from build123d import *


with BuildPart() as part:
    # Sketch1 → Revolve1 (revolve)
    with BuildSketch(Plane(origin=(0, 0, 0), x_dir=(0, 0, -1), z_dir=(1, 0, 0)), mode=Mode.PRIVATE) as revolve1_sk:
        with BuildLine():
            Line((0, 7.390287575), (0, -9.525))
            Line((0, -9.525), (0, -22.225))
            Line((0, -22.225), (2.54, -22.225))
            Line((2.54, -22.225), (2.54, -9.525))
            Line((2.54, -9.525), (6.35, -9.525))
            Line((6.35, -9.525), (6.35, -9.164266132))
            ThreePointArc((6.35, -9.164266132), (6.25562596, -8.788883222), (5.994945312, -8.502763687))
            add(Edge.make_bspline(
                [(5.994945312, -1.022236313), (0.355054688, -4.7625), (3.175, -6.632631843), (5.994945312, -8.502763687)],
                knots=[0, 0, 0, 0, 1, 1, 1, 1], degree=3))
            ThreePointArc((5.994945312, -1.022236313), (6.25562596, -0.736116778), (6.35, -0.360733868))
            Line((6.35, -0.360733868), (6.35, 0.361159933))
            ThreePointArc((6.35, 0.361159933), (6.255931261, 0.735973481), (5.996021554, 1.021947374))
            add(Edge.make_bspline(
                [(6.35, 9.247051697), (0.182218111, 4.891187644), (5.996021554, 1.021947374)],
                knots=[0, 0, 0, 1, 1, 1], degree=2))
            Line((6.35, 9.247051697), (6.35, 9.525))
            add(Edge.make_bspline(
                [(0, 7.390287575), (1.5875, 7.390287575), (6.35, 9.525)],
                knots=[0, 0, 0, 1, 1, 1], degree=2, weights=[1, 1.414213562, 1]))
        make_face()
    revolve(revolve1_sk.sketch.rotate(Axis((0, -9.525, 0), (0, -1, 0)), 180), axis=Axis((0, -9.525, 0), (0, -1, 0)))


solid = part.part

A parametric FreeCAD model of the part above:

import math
import FreeCAD as App
import Part
import Sketcher
from FreeCAD import Vector
Q = App.Units.Quantity

doc = App.newDocument("Part")
params = doc.addObject("Spreadsheet::Sheet", "Params")
for row, (alias, value) in enumerate([
    ("sketch1_width", "0.5 in"),
    ("sketch1_height", "0.1 in"),
    ("sketch1_radius", "0.03125 in"),
    ("revolution_angle", "360 deg"),
], start=1):
    params.set(f"A{row}", alias)
    params.set(f"B{row}", "=" + value)
    params.setAlias(f"B{row}", alias)

body = doc.addObject("PartDesign::Body", "Body")

# Sketch on YZ plane
sketch1 = body.newObject("Sketcher::SketchObject", "Sketch")
sketch1.AttachmentSupport = (doc.getObject("YZ_Plane"), [""])
sketch1.MapMode = "FlatFace"
sketch1.addGeometry(Part.LineSegment(Vector(7.390288, 0, 0), Vector(-22.225, 0, 0)), False)
sketch1.addGeometry(Part.LineSegment(Vector(-22.225, 0, 0), Vector(-22.225, -2.54, 0)), False)
sketch1.addGeometry(Part.LineSegment(Vector(-22.225, -2.54, 0), Vector(-9.525, -2.54, 0)), False)
sketch1.addGeometry(Part.LineSegment(Vector(-9.525, -2.54, 0), Vector(-9.525, -6.35, 0)), False)
sketch1.addGeometry(Part.LineSegment(Vector(-9.525, -6.35, 0), Vector(-9.164266, -6.35, 0)), False)
sketch1.addGeometry(Part.ArcOfCircle(Part.Circle(Vector(-9.164266, -5.55625, 0), Vector(0, 0, 1), 0.79375), math.radians(-90), math.radians(-33.551549)), False)
sketch1.addGeometry(Part.BSplineCurve([Vector(-1.022236, -5.994945, 0), Vector(-4.7625, -0.355055, 0), Vector(-6.632632, -3.175, 0), Vector(-8.502764, -5.994945, 0)], [4, 4], [0, 1], False, 3, [1, 1, 1, 1], False), False)
sketch1.addGeometry(Part.ArcOfCircle(Part.Circle(Vector(-0.360734, -5.55625, 0), Vector(0, 0, 1), 0.79375), math.radians(-146.448451), math.radians(-90)), False)
sketch1.addGeometry(Part.LineSegment(Vector(-0.360734, -6.35, 0), Vector(0.36116, -6.35, 0)), False)
sketch1.addGeometry(Part.ArcOfCircle(Part.Circle(Vector(0.36116, -5.55625, 0), Vector(0, 0, 1), 0.79375), math.radians(-90), math.radians(-33.644817)), False)
sketch1.addGeometry(Part.BSplineCurve([Vector(9.247052, -6.35, 0), Vector(4.891188, -0.182218, 0), Vector(1.021947, -5.996022, 0)], [3, 3], [0, 1], False, 2, [1, 1, 1], False), False)
sketch1.addGeometry(Part.LineSegment(Vector(9.247052, -6.35, 0), Vector(9.525, -6.35, 0)), False)
sketch1.addGeometry(Part.BSplineCurve([Vector(7.390288, 0, 0), Vector(7.390288, -1.5875, 0), Vector(9.525, -6.35, 0)], [3, 3], [0, 1], False, 2, [1, 1.414213562, 1], False), False)
sketch1.addConstraint(Sketcher.Constraint("Block", 6))
sketch1.addConstraint(Sketcher.Constraint("Block", 10))
sketch1.addConstraint(Sketcher.Constraint("Block", 12))
sketch1.addConstraint(Sketcher.Constraint("Coincident", 0, 2, 1, 1))
sketch1.addConstraint(Sketcher.Constraint("Coincident", 1, 2, 2, 1))
sketch1.addConstraint(Sketcher.Constraint("Coincident", 2, 2, 3, 1))
sketch1.addConstraint(Sketcher.Constraint("Coincident", 3, 2, 4, 1))
sketch1.addConstraint(Sketcher.Constraint("Tangent", 4, 2, 5, 1))
sketch1.addConstraint(Sketcher.Constraint("Coincident", 5, 2, 6, 2))
sketch1.addConstraint(Sketcher.Constraint("Coincident", 6, 1, 7, 1))
sketch1.addConstraint(Sketcher.Constraint("Tangent", 7, 2, 8, 1))
sketch1.addConstraint(Sketcher.Constraint("Tangent", 8, 2, 9, 1))
sketch1.addConstraint(Sketcher.Constraint("Coincident", 9, 2, 10, 2))
sketch1.addConstraint(Sketcher.Constraint("Coincident", 10, 1, 11, 1))
sketch1.addConstraint(Sketcher.Constraint("Coincident", 11, 2, 12, 2))
sketch1.addConstraint(Sketcher.Constraint("Coincident", 12, 1, 0, 1))
sketch1.addConstraint(Sketcher.Constraint("Horizontal", 0))
sketch1.addConstraint(Sketcher.Constraint("Vertical", 1))
sketch1.addConstraint(Sketcher.Constraint("Horizontal", 2))
sketch1.addConstraint(Sketcher.Constraint("Vertical", 3))
sketch1.addConstraint(Sketcher.Constraint("Horizontal", 4))
sketch1.addConstraint(Sketcher.Constraint("Horizontal", 8))
sketch1.addConstraint(Sketcher.Constraint("Equal", 5, 7))
sketch1.addConstraint(Sketcher.Constraint("Equal", 7, 9))
sketch1.addConstraint(Sketcher.Constraint("Symmetric", 3, 2, 11, 2, -2))
sketch1.addConstraint(Sketcher.Constraint("Horizontal", 5, 3, 7, 3))
sketch1.addConstraint(Sketcher.Constraint("DistanceX", 2, 1, 2, 2, Q("0.5 in")))
sketch1.addConstraint(Sketcher.Constraint("DistanceY", 1, 2, 1, 1, Q("0.1 in")))
sketch1.addConstraint(Sketcher.Constraint("Radius", 5, Q("0.03125 in")))
sketch1.setExpression("Constraints[26]", "Params.sketch1_width")
sketch1.setExpression("Constraints[27]", "Params.sketch1_height")
sketch1.setExpression("Constraints[28]", "Params.sketch1_radius")
revolution = body.newObject("PartDesign::Revolution", "Revolution")
revolution.Profile = sketch1
revolution.ReferenceAxis = (sketch1, ["H_Axis"])
revolution.setExpression("Angle", "Params.revolution_angle")

doc.recompute()
